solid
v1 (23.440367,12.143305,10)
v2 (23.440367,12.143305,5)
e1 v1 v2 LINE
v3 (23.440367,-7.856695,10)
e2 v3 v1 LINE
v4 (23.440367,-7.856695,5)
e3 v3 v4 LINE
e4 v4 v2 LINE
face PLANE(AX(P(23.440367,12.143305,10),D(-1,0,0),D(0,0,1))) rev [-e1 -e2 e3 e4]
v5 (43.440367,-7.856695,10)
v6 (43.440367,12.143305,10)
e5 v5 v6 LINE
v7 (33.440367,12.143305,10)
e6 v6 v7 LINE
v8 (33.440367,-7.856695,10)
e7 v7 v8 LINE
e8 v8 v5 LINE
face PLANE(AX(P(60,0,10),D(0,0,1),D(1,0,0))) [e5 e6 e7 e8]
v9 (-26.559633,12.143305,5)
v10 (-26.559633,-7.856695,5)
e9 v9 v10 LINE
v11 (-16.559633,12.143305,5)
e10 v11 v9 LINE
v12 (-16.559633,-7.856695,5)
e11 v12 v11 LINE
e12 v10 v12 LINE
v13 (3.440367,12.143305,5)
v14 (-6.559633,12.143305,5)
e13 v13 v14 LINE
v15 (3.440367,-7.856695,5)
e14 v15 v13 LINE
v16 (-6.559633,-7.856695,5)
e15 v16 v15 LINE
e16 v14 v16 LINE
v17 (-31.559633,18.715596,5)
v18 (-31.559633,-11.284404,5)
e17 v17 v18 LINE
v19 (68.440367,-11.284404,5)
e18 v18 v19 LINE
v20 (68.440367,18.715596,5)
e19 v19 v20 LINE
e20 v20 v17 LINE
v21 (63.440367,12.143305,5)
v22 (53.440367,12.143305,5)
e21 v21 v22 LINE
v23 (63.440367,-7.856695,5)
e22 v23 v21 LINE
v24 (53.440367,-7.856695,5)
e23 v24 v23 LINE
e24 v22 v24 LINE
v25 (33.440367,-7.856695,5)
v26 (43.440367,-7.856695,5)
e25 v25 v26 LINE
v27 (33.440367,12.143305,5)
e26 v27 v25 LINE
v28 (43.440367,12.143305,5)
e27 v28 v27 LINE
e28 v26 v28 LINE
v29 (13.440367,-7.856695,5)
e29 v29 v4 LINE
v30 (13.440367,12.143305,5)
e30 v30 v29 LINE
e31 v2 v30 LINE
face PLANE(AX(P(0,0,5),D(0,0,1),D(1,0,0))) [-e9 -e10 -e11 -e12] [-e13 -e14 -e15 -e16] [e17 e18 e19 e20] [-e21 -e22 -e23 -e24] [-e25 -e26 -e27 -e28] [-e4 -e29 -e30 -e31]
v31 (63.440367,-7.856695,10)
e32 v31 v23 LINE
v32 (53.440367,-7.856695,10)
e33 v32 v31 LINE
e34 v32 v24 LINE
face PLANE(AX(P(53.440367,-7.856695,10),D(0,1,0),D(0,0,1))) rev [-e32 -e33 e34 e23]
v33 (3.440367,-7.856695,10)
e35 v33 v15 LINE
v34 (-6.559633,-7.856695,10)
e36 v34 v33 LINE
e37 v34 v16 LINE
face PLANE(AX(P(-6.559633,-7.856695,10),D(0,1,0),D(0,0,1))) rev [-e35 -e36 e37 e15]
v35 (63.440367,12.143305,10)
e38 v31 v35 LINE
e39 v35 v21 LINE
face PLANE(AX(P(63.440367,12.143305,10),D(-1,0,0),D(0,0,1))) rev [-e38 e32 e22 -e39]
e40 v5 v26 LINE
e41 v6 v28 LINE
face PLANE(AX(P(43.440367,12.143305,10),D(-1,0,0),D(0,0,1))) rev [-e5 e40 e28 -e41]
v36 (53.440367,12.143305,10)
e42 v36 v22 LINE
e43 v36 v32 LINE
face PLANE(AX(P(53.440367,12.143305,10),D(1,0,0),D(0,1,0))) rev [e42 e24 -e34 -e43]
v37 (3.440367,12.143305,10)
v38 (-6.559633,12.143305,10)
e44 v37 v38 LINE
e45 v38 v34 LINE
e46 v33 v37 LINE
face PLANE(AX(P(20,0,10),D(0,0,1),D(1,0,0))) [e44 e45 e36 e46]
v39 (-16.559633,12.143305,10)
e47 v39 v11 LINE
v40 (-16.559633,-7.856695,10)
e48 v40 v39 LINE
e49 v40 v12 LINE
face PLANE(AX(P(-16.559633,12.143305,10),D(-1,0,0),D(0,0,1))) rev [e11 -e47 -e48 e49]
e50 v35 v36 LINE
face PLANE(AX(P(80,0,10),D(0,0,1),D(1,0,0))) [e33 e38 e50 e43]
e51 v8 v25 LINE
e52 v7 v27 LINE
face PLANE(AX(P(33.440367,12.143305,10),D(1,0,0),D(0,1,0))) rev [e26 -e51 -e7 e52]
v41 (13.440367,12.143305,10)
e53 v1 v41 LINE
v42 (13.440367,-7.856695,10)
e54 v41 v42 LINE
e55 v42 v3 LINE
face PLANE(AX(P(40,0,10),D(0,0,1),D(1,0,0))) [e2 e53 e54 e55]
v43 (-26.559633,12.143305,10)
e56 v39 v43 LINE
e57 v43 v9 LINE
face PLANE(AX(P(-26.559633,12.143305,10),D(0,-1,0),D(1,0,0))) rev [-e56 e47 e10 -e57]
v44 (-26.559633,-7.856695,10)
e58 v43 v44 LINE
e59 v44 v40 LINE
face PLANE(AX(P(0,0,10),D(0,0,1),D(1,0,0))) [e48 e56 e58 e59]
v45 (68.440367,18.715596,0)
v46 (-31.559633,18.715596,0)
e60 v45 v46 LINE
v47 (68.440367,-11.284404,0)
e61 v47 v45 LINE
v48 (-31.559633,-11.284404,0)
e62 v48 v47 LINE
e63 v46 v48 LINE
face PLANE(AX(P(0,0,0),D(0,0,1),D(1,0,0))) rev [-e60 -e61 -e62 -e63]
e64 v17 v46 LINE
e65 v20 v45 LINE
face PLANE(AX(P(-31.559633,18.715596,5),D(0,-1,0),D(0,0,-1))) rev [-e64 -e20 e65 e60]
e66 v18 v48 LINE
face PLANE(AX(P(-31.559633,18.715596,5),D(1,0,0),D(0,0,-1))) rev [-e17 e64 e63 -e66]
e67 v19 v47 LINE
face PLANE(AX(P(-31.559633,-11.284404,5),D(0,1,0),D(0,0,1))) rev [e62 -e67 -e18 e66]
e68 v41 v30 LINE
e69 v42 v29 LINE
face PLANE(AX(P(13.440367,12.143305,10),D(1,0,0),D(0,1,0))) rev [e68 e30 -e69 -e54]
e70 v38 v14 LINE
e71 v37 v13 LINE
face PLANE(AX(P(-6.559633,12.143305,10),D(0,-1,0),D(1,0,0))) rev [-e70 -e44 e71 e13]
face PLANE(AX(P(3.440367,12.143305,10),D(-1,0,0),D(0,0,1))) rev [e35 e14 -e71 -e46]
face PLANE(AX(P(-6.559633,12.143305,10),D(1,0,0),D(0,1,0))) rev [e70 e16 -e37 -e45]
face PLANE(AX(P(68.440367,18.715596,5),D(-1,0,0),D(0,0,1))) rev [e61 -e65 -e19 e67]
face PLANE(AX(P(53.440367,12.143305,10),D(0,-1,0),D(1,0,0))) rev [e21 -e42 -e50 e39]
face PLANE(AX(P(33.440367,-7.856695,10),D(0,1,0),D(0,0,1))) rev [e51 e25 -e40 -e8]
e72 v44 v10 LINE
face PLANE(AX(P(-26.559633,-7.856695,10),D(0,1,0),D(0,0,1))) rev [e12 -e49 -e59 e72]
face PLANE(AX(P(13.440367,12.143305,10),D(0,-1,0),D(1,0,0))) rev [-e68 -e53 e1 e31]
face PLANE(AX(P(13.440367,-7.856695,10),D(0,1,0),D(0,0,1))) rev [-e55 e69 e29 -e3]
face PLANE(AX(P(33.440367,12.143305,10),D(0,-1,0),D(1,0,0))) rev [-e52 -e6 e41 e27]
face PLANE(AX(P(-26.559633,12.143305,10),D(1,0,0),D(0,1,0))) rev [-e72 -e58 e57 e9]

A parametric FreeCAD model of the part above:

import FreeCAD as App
import Part
import Sketcher


def add_polygon(sketch, points):
    """Adds a closed chain of lines whose ends are joined by coincident constraints."""
    first, n = sketch.GeometryCount, len(points)
    for a, b in zip(points, points[1:] + points[:1]):
        sketch.addGeometry(Part.LineSegment(App.Vector(*a, 0), App.Vector(*b, 0)), False)
    for i in range(n):
        sketch.addConstraint(Sketcher.Constraint("Coincident", first + i, 2, first + (i + 1) % n, 1))

doc = App.newDocument("Part")
body = doc.addObject("PartDesign::Body", "Body")

# Sketch on XY plane
sketch1 = body.newObject("Sketcher::SketchObject", "Sketch")
sketch1.AttachmentSupport = (doc.getObject("XY_Plane"), [""])
sketch1.MapMode = "FlatFace"
add_polygon(sketch1, [(-32, 19), (-32, -11), (68, -11), (68, 19)])  # lines 0-3
sketch1.addConstraint([
    Sketcher.Constraint("Vertical", 0),
    Sketcher.Constraint("Horizontal", 1),
    Sketcher.Constraint("Vertical", 2),
    Sketcher.Constraint("Horizontal", 3),
    Sketcher.Constraint("DistanceX", 1, 1, 1, 2, 100.0),
    Sketcher.Constraint("DistanceY", 0, 2, 0, 1, 30.0),
    Sketcher.Constraint("DistanceX", 0, 2, -1, 1, 31.559633),
    Sketcher.Constraint("DistanceY", 0, 2, -1, 1, 11.284404),
])
pad1 = body.newObject("PartDesign::Pad", "Pad")
pad1.Profile = sketch1
pad1.Length = 5

# Sketch on XY plane
sketch2 = body.newObject("Sketcher::SketchObject", "Sketch001")
sketch2.AttachmentSupport = (doc.getObject("XY_Plane"), [""])
sketch2.MapMode = "FlatFace"
sketch2.AttachmentOffset = App.Placement(App.Vector(0, 0, 5), App.Rotation())
add_polygon(sketch2, [(-27, 12), (-27, -8), (-17, -8), (-17, 12)])  # lines 0-3
sketch2.addConstraint([
    Sketcher.Constraint("Vertical", 0),
    Sketcher.Constraint("Horizontal", 1),
    Sketcher.Constraint("Vertical", 2),
    Sketcher.Constraint("Horizontal", 3),
    Sketcher.Constraint("DistanceX", 1, 1, 1, 2, 10.0),
    Sketcher.Constraint("DistanceY", 0, 2, 0, 1, 20.0),
    Sketcher.Constraint("DistanceX", 0, 2, -1, 1, 26.559633),
    Sketcher.Constraint("DistanceY", 0, 2, -1, 1, 7.856695),
])
pad2 = body.newObject("PartDesign::Pad", "Pad001")
pad2.Profile = sketch2
pad2.Length = 5
doc.recompute()

linearpattern = body.newObject("PartDesign::LinearPattern", "LinearPattern")
linearpattern.Originals = [pad2]
linearpattern.Direction = (doc.getObject("X_Axis"), [""])
linearpattern.Mode = "offset"
linearpattern.Offset = 20
linearpattern.Occurrences = 5
body.Tip = linearpattern

doc.recompute()
